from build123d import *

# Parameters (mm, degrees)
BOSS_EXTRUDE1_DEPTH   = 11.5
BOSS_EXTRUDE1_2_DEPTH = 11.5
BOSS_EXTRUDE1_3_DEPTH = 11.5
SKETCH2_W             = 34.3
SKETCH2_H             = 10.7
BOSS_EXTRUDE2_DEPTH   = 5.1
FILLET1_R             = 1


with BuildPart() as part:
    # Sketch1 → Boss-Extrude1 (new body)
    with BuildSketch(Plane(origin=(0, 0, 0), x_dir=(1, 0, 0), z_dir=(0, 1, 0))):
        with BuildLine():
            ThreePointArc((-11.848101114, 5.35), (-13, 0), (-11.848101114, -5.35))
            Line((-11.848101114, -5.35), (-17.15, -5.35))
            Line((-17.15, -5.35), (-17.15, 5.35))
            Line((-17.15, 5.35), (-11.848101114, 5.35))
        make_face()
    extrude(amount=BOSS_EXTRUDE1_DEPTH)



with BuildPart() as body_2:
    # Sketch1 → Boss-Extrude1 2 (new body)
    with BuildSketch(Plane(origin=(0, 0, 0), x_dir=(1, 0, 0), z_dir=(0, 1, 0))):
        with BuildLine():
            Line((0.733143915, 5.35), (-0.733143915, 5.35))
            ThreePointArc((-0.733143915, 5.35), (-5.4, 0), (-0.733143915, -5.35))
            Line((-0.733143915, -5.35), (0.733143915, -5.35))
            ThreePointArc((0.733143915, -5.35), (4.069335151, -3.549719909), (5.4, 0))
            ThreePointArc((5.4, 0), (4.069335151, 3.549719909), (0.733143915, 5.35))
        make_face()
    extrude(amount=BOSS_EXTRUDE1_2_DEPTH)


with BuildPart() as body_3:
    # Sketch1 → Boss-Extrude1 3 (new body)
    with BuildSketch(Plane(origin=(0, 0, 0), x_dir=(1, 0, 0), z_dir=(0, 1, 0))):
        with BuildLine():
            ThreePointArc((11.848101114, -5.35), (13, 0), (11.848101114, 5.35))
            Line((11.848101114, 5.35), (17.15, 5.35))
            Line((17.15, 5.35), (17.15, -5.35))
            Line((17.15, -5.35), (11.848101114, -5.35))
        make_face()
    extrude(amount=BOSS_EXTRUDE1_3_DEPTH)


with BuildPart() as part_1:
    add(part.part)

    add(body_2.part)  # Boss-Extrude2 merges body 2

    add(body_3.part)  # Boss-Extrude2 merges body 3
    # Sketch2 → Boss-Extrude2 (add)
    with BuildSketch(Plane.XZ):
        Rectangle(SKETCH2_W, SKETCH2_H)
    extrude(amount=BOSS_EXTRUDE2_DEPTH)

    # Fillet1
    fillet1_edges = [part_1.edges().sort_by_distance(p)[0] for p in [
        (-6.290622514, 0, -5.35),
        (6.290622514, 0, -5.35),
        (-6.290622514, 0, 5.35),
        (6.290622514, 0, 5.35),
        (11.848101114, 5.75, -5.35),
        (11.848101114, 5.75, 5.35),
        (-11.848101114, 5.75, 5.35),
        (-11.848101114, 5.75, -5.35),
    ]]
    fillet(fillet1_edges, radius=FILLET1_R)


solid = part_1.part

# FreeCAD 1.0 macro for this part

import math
import FreeCAD as App
import Part
import Sketcher
from FreeCAD import Vector


def edges_at(feature, points):
    """Names of the edges that pass closest to the given points."""
    edges = feature.Shape.Edges
    near = lambda p: min(range(len(edges)), key=lambda i: edges[i].distToShape(Part.Vertex(*p))[0])
    return sorted({f"Edge{near(p) + 1}" for p in points})

doc = App.newDocument("Part")
params = doc.addObject("Spreadsheet::Sheet", "Params")
for row, (alias, value) in enumerate([
    ("sketch1_radius", "13 mm"),
    ("sketch1_height", "10.7 mm"),
    ("pad1_length", "11.5 mm"),
    ("sketch2_radius", "5.4 mm"),
    ("pad2_length", "11.5 mm"),
    ("sketch3_radius", "13 mm"),
    ("sketch3_height", "10.7 mm"),
    ("pad3_length", "11.5 mm"),
    ("sketch4_width", "34.3 mm"),
    ("sketch4_height", "10.7 mm"),
    ("pad4_length", "5.1 mm"),
    ("fillet_radius", "1 mm"),
], start=1):
    params.set(f"A{row}", alias)
    params.set(f"B{row}", "=" + value)
    params.setAlias(f"B{row}", alias)

body = doc.addObject("PartDesign::Body", "Body")

sketch1 = doc.addObject("Sketcher::SketchObject", "Sketch")
body.addObject(sketch1)
sketch1.AttachmentSupport = (doc.XZ_Plane, [""])
sketch1.MapMode = "FlatFace"
sketch1.addGeometry([
    Part.ArcOfCircle(Part.Circle(Vector(0, 0, 0), Vector(0, 0, 1), 13), math.radians(155.698485), math.radians(204.301515)),
    Part.LineSegment(Vector(-11.848101, -5.35, 0), Vector(-17.15, -5.35, 0)),
    Part.LineSegment(Vector(-17.15, -5.35, 0), Vector(-17.15, 5.35, 0)),
    Part.LineSegment(Vector(-17.15, 5.35, 0), Vector(-11.848101, 5.35, 0)),
], False)
sketch1.addConstraint([
    Sketcher.Constraint("Coincident", 0, 2, 1, 1),
    Sketcher.Constraint("Coincident", 1, 2, 2, 1),
    Sketcher.Constraint("Coincident", 2, 2, 3, 1),
    Sketcher.Constraint("Coincident", 3, 2, 0, 1),
    Sketcher.Constraint("Horizontal", 1),
    Sketcher.Constraint("Vertical", 2),
    Sketcher.Constraint("Horizontal", 3),
    Sketcher.Constraint("Coincident", 0, 3, -1, 1),
    Sketcher.Constraint("Vertical", 0, 2, 3, 2),
    Sketcher.Constraint("Radius", 0, 13.0),
    Sketcher.Constraint("DistanceY", 2, 1, 2, 2, 10.7),
    Sketcher.Constraint("DistanceX", 1, 2, -1, 1, 17.15),
])
sketch1.setExpression("Constraints[9]", "Params.sketch1_radius")
sketch1.setExpression("Constraints[10]", "Params.sketch1_height")
pad1 = doc.addObject("PartDesign::Pad", "Pad")
body.addObject(pad1)
pad1.Profile = sketch1
pad1.setExpression("Length", "Params.pad1_length")
pad1.Reversed = True
body2 = doc.addObject("PartDesign::Body", "Body001")

sketch2 = doc.addObject("Sketcher::SketchObject", "Sketch001")
body2.addObject(sketch2)
sketch2.AttachmentSupport = (doc.getObject("XZ_Plane001"), [""])
sketch2.MapMode = "FlatFace"
sketch2.addGeometry([
    Part.LineSegment(Vector(0.733144, -5.35, 0), Vector(-0.733144, -5.35, 0)),
    Part.ArcOfCircle(Part.Circle(Vector(0, 0, 0), Vector(0, 0, 1), 5.4), math.radians(97.802997), math.radians(262.197003)),
    Part.LineSegment(Vector(-0.733144, 5.35, 0), Vector(0.733144, 5.35, 0)),
    Part.ArcOfCircle(Part.Circle(Vector(0, 0, 0), Vector(0, 0, 1), 5.4), math.radians(0), math.radians(82.197003)),
    Part.ArcOfCircle(Part.Circle(Vector(0, 0, 0), Vector(0, 0, 1), 5.4), math.radians(-82.197003), math.radians(0)),
], False)
sketch2.addConstraint([
    Sketcher.Constraint("Coincident", 0, 2, 1, 2),
    Sketcher.Constraint("Coincident", 1, 1, 2, 1),
    Sketcher.Constraint("Coincident", 2, 2, 3, 2),
    Sketcher.Constraint("Tangent", 3, 1, 4, 2),
    Sketcher.Constraint("Coincident", 4, 1, 0, 1),
    Sketcher.Constraint("Horizontal", 0),
    Sketcher.Constraint("Horizontal", 2),
    Sketcher.Constraint("Coincident", 1, 3, -1, 1),
    Sketcher.Constraint("Coincident", 3, 3, -1, 1),
    Sketcher.Constraint("Equal", 1, 3),
    Sketcher.Constraint("Equal", 3, 4),
    Sketcher.Constraint("PointOnObject", 3, 1, -1),
    Sketcher.Constraint("Vertical", 0, 2, 1, 1),
    Sketcher.Constraint("Radius", 1, 5.4),
    Sketcher.Constraint("DistanceY", 0, 2, 1, 1, 10.7),
])
sketch2.setExpression("Constraints[13]", "Params.sketch2_radius")
pad2 = doc.addObject("PartDesign::Pad", "Pad001")
body2.addObject(pad2)
pad2.Profile = sketch2
pad2.setExpression("Length", "Params.pad2_length")
pad2.Reversed = True
body3 = doc.addObject("PartDesign::Body", "Body002")

sketch3 = doc.addObject("Sketcher::SketchObject", "Sketch002")
body3.addObject(sketch3)
sketch3.AttachmentSupport = (doc.getObject("XZ_Plane002"), [""])
sketch3.MapMode = "FlatFace"
sketch3.addGeometry([
    Part.ArcOfCircle(Part.Circle(Vector(0, 0, 0), Vector(0, 0, 1), 13), math.radians(-24.301515), math.radians(24.301515)),
    Part.LineSegment(Vector(11.848101, 5.35, 0), Vector(17.15, 5.35, 0)),
    Part.LineSegment(Vector(17.15, 5.35, 0), Vector(17.15, -5.35, 0)),
    Part.LineSegment(Vector(17.15, -5.35, 0), Vector(11.848101, -5.35, 0)),
], False)
sketch3.addConstraint([
    Sketcher.Constraint("Coincident", 0, 2, 1, 1),
    Sketcher.Constraint("Coincident", 1, 2, 2, 1),
    Sketcher.Constraint("Coincident", 2, 2, 3, 1),
    Sketcher.Constraint("Coincident", 3, 2, 0, 1),
    Sketcher.Constraint("Horizontal", 1),
    Sketcher.Constraint("Vertical", 2),
    Sketcher.Constraint("Horizontal", 3),
    Sketcher.Constraint("Coincident", 0, 3, -1, 1),
    Sketcher.Constraint("Vertical", 0, 2, 3, 2),
    Sketcher.Constraint("Radius", 0, 13.0),
    Sketcher.Constraint("DistanceY", 2, 2, 2, 1, 10.7),
    Sketcher.Constraint("DistanceX", -1, 1, 1, 2, 17.15),
])
sketch3.setExpression("Constraints[9]", "Params.sketch3_radius")
sketch3.setExpression("Constraints[10]", "Params.sketch3_height")
pad3 = doc.addObject("PartDesign::Pad", "Pad002")
body3.addObject(pad3)
pad3.Profile = sketch3
pad3.setExpression("Length", "Params.pad3_length")
pad3.Reversed = True
body.AllowCompound = True
doc.recompute()

boolean = doc.addObject("PartDesign::Boolean", "Boolean")
body.addObject(boolean)
boolean.Type = "Fuse"
boolean.addObjects([body2])
doc.recompute()

boolean2 = doc.addObject("PartDesign::Boolean", "Boolean001")
body.addObject(boolean2)
boolean2.Type = "Fuse"
boolean2.addObjects([body3])

sketch4 = doc.addObject("Sketcher::SketchObject", "Sketch003")
body.addObject(sketch4)
sketch4.AttachmentSupport = (doc.XZ_Plane, [""])
sketch4.MapMode = "FlatFace"
sketch4.addGeometry([
    Part.LineSegment(Vector(-17.15, 5.35, 0), Vector(-17.15, -5.35, 0)),
    Part.LineSegment(Vector(-17.15, -5.35, 0), Vector(17.15, -5.35, 0)),
    Part.LineSegment(Vector(17.15, -5.35, 0), Vector(17.15, 5.35, 0)),
    Part.LineSegment(Vector(17.15, 5.35, 0), Vector(-17.15, 5.35, 0)),
], False)
sketch4.addConstraint([
    Sketcher.Constraint("Coincident", 0, 2, 1, 1),
    Sketcher.Constraint("Coincident", 1, 2, 2, 1),
    Sketcher.Constraint("Coincident", 2, 2, 3, 1),
    Sketcher.Constraint("Coincident", 3, 2, 0, 1),
    Sketcher.Constraint("Vertical", 0),
    Sketcher.Constraint("Horizontal", 1),
    Sketcher.Constraint("Vertical", 2),
    Sketcher.Constraint("Horizontal", 3),
    Sketcher.Constraint("Symmetric", 0, 2, 2, 2, -1, 1),
    Sketcher.Constraint("DistanceX", 1, 1, 1, 2, 34.3),
    Sketcher.Constraint("DistanceY", 0, 2, 0, 1, 10.7),
])
sketch4.setExpression("Constraints[9]", "Params.sketch4_width")
sketch4.setExpression("Constraints[10]", "Params.sketch4_height")
pad4 = doc.addObject("PartDesign::Pad", "Pad003")
body.addObject(pad4)
pad4.Profile = sketch4
pad4.setExpression("Length", "Params.pad4_length")
doc.recompute()

fillet = doc.addObject("PartDesign::Fillet", "Fillet")
body.addObject(fillet)
fillet.Base = (pad4, edges_at(pad4, [
    (-6.291, 0, -5.35),
    (6.291, 0, -5.35),
    (-6.291, 0, 5.35),
    (6.291, 0, 5.35),
    (11.848, 5.75, -5.35),
    (11.848, 5.75, 5.35),
    (-11.848, 5.75, 5.35),
    (-11.848, 5.75, -5.35),
]))
fillet.setExpression("Radius", "Params.fillet_radius")

doc.recompute()
